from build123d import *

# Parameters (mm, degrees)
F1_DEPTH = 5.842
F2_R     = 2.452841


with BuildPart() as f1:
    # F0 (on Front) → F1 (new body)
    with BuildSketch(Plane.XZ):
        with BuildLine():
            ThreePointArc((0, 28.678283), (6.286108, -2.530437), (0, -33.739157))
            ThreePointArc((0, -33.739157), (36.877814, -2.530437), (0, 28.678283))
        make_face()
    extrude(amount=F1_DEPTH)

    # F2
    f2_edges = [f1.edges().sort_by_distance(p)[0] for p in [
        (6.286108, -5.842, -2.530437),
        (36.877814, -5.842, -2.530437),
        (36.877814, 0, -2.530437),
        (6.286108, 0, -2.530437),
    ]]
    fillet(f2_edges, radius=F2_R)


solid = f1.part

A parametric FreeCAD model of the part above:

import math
import FreeCAD as App
import Part
import Sketcher

V = App.Vector
Q = App.Units.Quantity


def edges_at(feature, points):
    """Names of the edges that pass closest to the given points."""
    edges = feature.Shape.Edges
    near = lambda p: min(range(len(edges)), key=lambda i: edges[i].distToShape(Part.Vertex(*p))[0])
    return sorted({f"Edge{near(p) + 1}" for p in points})

doc = App.newDocument("Part")
body = doc.addObject("PartDesign::Body", "Body")

# Sketch on XZ plane
sketch1 = doc.addObject("Sketcher::SketchObject", "Sketch")
body.addObject(sketch1)
sketch1.AttachmentSupport = (doc.XZ_Plane, [""])
sketch1.MapMode = "FlatFace"
sketch1.addGeometry([
    Part.ArcOfCircle(Part.Circle(V(-74, -3, 0), V(0, 0, 1), 81), math.radians(-23), math.radians(23)),
    Part.ArcOfCircle(Part.Circle(V(5, -3, 0), V(0, 0, 1), 32), math.radians(-100), math.radians(100)),
], False)
sketch1.addConstraint([
    Sketcher.Constraint("Coincident", 0, 1, 1, 1),
    Sketcher.Constraint("Coincident", 1, 2, 0, 2),
    Sketcher.Constraint("PointOnObject", 0, 1, -2),
    Sketcher.Constraint("PointOnObject", 1, 2, -2),
    Sketcher.Constraint("Radius", 0, 80.614218),
    Sketcher.Constraint("Radius", 1, 31.644465),
    Sketcher.Constraint("DistanceX", 0, 3, -1, 1, 74.32811),
    Sketcher.Constraint("DistanceY", 0, 3, -1, 1, 2.530437),
])
pad1 = doc.addObject("PartDesign::Pad", "Pad")
body.addObject(pad1)
pad1.Profile = sketch1
pad1.Length = Q("0.23 in")
doc.recompute()

fillet = doc.addObject("PartDesign::Fillet", "Fillet")
body.addObject(fillet)
fillet.Base = (pad1, edges_at(pad1, [
    (6.286, -5.842, -2.53),
    (36.878, -5.842, -2.53),
    (36.878, 0, -2.53),
    (6.286, 0, -2.53),
]))
fillet.Radius = 2.452841

doc.recompute()
